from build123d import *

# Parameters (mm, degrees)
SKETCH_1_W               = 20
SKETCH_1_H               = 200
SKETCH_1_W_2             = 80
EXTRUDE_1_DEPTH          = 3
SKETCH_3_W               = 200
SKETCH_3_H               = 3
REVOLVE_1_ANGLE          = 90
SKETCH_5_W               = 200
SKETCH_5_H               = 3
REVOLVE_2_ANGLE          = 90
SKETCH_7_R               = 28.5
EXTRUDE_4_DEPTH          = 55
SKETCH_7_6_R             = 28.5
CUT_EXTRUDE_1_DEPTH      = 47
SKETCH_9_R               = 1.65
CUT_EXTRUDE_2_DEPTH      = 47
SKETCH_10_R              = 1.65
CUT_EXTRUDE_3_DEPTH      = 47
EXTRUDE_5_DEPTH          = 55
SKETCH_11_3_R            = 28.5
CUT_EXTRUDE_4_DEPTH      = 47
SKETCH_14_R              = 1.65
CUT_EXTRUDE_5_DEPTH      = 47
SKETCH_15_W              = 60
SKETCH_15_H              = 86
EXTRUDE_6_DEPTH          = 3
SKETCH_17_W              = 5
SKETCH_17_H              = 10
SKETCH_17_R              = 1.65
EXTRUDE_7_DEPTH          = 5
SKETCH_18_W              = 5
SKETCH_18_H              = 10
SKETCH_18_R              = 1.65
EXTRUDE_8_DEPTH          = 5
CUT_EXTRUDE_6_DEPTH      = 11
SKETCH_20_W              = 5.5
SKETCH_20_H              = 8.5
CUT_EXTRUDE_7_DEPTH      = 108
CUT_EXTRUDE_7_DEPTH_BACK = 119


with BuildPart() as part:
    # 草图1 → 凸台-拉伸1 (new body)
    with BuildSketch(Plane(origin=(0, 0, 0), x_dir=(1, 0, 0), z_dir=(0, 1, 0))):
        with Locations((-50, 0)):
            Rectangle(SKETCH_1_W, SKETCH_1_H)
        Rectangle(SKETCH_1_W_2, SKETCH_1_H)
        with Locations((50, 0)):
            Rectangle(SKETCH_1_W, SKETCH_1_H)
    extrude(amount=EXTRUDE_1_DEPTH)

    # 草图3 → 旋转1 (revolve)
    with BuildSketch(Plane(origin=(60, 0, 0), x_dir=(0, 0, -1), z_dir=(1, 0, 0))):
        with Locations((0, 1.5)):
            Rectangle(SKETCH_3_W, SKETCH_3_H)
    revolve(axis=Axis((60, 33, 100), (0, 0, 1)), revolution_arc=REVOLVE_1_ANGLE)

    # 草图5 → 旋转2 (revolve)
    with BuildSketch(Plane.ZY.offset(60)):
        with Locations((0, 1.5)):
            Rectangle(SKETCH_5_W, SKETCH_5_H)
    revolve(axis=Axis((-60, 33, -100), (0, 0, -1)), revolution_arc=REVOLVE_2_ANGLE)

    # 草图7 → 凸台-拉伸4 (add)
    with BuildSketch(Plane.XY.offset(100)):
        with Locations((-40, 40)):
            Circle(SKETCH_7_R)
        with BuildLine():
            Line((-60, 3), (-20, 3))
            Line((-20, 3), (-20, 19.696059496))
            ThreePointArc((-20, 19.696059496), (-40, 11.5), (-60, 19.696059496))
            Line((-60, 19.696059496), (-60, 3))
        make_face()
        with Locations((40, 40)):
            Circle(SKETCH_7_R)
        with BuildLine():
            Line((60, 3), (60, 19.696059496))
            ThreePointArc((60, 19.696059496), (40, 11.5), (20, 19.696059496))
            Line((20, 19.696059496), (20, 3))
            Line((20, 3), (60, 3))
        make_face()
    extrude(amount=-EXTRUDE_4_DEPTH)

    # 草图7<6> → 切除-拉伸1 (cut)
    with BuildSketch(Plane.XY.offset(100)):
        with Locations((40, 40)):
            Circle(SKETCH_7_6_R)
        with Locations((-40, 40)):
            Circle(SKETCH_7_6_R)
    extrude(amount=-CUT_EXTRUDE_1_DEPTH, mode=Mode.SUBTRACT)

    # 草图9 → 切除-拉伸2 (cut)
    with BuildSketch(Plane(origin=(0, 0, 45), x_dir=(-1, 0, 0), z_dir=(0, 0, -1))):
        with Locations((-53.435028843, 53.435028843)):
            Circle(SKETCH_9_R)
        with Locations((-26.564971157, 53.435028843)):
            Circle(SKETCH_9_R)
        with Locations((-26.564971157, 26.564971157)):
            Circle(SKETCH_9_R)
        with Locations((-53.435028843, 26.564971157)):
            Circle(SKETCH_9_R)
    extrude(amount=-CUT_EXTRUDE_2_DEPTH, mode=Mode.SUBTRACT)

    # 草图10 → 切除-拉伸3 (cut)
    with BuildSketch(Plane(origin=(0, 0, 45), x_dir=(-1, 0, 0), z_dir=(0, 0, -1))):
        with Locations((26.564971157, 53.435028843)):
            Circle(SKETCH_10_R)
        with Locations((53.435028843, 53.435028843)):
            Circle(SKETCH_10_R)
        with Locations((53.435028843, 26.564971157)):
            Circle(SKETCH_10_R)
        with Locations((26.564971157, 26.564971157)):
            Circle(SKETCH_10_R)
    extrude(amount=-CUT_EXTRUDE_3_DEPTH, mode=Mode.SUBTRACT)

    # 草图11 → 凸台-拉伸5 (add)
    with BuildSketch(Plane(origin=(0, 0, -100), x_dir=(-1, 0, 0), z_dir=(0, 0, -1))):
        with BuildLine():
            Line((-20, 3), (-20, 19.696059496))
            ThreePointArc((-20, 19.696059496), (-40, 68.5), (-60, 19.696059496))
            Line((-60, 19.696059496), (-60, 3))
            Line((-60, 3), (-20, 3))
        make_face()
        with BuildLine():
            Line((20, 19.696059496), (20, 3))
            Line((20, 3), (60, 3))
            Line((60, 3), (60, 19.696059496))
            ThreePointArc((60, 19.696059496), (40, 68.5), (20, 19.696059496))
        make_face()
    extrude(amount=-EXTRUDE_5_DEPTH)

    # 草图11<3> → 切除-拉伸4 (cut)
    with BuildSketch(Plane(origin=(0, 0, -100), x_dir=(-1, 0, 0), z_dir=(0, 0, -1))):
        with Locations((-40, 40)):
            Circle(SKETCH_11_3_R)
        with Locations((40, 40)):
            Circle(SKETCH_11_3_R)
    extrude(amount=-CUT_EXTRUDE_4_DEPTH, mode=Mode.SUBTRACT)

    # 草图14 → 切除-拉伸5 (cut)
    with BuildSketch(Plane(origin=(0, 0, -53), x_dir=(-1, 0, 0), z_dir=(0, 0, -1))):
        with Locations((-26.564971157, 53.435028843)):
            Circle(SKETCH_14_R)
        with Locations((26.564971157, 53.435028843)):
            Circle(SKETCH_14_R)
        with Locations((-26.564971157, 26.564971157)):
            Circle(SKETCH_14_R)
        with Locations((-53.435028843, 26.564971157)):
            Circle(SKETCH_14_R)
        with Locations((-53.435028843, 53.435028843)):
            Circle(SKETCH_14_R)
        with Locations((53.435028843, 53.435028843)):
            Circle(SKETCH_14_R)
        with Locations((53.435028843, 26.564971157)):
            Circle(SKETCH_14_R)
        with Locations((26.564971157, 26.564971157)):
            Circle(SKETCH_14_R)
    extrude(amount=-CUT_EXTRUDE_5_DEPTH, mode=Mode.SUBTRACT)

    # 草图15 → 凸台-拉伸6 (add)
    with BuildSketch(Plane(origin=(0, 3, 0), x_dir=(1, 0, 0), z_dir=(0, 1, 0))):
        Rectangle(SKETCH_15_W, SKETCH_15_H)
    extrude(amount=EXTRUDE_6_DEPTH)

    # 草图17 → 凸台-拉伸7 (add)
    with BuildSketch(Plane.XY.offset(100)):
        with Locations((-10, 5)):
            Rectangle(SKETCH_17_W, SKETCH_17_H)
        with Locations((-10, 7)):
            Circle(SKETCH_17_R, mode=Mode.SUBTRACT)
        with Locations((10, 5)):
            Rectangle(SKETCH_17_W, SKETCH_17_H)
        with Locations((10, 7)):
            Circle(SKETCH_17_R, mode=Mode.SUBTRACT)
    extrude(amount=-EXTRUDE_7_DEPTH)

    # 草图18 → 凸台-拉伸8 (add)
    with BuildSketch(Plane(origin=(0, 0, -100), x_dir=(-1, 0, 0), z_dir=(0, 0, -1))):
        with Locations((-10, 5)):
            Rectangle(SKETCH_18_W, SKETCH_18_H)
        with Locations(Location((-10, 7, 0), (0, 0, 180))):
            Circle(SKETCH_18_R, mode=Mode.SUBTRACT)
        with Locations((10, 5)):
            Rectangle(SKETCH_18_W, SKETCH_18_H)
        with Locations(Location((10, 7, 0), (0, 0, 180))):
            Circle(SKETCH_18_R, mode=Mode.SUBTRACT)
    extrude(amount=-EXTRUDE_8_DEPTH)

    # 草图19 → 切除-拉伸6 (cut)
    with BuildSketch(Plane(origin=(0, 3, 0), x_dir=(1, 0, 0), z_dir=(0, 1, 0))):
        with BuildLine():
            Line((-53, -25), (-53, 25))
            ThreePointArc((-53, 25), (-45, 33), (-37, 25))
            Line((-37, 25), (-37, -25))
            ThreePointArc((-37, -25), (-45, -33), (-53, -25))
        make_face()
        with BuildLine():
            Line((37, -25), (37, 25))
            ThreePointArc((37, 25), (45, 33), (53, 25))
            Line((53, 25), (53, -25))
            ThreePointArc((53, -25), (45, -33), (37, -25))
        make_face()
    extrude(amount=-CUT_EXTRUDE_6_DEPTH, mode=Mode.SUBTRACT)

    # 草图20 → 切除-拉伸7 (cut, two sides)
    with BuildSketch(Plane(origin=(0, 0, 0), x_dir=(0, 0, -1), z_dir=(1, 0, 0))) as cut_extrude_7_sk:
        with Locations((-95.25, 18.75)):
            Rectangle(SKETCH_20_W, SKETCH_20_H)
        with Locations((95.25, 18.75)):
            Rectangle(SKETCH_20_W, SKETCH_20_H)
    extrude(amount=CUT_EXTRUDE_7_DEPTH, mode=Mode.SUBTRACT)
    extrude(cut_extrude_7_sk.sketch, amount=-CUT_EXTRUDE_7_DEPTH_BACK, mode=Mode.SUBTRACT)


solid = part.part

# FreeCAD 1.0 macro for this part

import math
import FreeCAD as App
import Part
import Sketcher
from FreeCAD import Vector
Q = App.Units.Quantity

doc = App.newDocument("Part")
body = doc.addObject("PartDesign::Body", "Body")

# Sketch on XZ plane
sketch1 = doc.addObject("Sketcher::SketchObject", "Sketch")
body.addObject(sketch1)
sketch1.AttachmentSupport = (doc.XZ_Plane, [""])
sketch1.MapMode = "FlatFace"
sketch1.addGeometry([
    Part.LineSegment(Vector(-60, -100, 0), Vector(-60, 100, 0)),
    Part.LineSegment(Vector(-60, 100, 0), Vector(60, 100, 0)),
    Part.LineSegment(Vector(60, 100, 0), Vector(60, -100, 0)),
    Part.LineSegment(Vector(60, -100, 0), Vector(-60, -100, 0)),
], False)
sketch1.addConstraint([
    Sketcher.Constraint("Coincident", 0, 2, 1, 1),
    Sketcher.Constraint("Coincident", 1, 2, 2, 1),
    Sketcher.Constraint("Coincident", 2, 2, 3, 1),
    Sketcher.Constraint("Coincident", 3, 2, 0, 1),
    Sketcher.Constraint("Vertical", 0),
    Sketcher.Constraint("Horizontal", 1),
    Sketcher.Constraint("Vertical", 2),
    Sketcher.Constraint("Horizontal", 3),
    Sketcher.Constraint("Symmetric", 0, 2, 2, 2, -1, 1),
    Sketcher.Constraint("DistanceX", 1, 1, 1, 2, Q("120 mm")),
    Sketcher.Constraint("DistanceY", 0, 1, 0, 2, Q("200 mm")),
])
pad1 = doc.addObject("PartDesign::Pad", "Pad")
body.addObject(pad1)
pad1.Profile = sketch1
pad1.Length = 3
pad1.Reversed = True

# Sketch on YZ plane
sketch2 = doc.addObject("Sketcher::SketchObject", "Sketch001")
body.addObject(sketch2)
sketch2.AttachmentSupport = (doc.YZ_Plane, [""])
sketch2.MapMode = "FlatFace"
sketch2.AttachmentOffset = App.Placement(Vector(0, 0, 60), App.Rotation())
sketch2.addGeometry([
    Part.LineSegment(Vector(3, 100, 0), Vector(0, 100, 0)),
    Part.LineSegment(Vector(0, 100, 0), Vector(0, -100, 0)),
    Part.LineSegment(Vector(0, -100, 0), Vector(3, -100, 0)),
    Part.LineSegment(Vector(3, -100, 0), Vector(3, 100, 0)),
], False)
sketch2.addGeometry(Part.LineSegment(Vector(33, -100, 0), Vector(33, 100, 0)), True)  # axis
sketch2.addConstraint([
    Sketcher.Constraint("Coincident", 0, 2, 1, 1),
    Sketcher.Constraint("Coincident", 1, 2, 2, 1),
    Sketcher.Constraint("Coincident", 2, 2, 3, 1),
    Sketcher.Constraint("Coincident", 3, 2, 0, 1),
    Sketcher.Constraint("Horizontal", 0),
    Sketcher.Constraint("Vertical", 1),
    Sketcher.Constraint("Horizontal", 2),
    Sketcher.Constraint("Vertical", 3),
    Sketcher.Constraint("Vertical", 4),
    Sketcher.Constraint("Symmetric", 0, 2, 1, 2, -1, 1),
    Sketcher.Constraint("Horizontal", 2, 2, 4, 1),
    Sketcher.Constraint("Horizontal", 3, 2, 4, 2),
    Sketcher.Constraint("DistanceX", 0, 2, 0, 1, Q("3 mm")),
    Sketcher.Constraint("DistanceY", 1, 2, 1, 1, Q("200 mm")),
    Sketcher.Constraint("DistanceX", -1, 1, 4, 1, Q("33 mm")),
])
revolution = doc.addObject("PartDesign::Revolution", "Revolution")
body.addObject(revolution)
revolution.Profile = sketch2
revolution.ReferenceAxis = (sketch2, ["Axis0"])
revolution.Angle = 90

# Sketch on YZ plane
sketch3 = doc.addObject("Sketcher::SketchObject", "Sketch002")
body.addObject(sketch3)
sketch3.AttachmentSupport = (doc.YZ_Plane, [""])
sketch3.MapMode = "FlatFace"
sketch3.AttachmentOffset = App.Placement(Vector(0, 0, -60), App.Rotation())
sketch3.addGeometry([
    Part.LineSegment(Vector(3, -100, 0), Vector(0, -100, 0)),
    Part.LineSegment(Vector(0, -100, 0), Vector(0, 100, 0)),
    Part.LineSegment(Vector(0, 100, 0), Vector(3, 100, 0)),
    Part.LineSegment(Vector(3, 100, 0), Vector(3, -100, 0)),
], False)
sketch3.addGeometry(Part.LineSegment(Vector(33, 100, 0), Vector(33, -100, 0)), True)  # axis
sketch3.addConstraint([
    Sketcher.Constraint("Coincident", 0, 2, 1, 1),
    Sketcher.Constraint("Coincident", 1, 2, 2, 1),
    Sketcher.Constraint("Coincident", 2, 2, 3, 1),
    Sketcher.Constraint("Coincident", 3, 2, 0, 1),
    Sketcher.Constraint("Horizontal", 0),
    Sketcher.Constraint("Vertical", 1),
    Sketcher.Constraint("Horizontal", 2),
    Sketcher.Constraint("Vertical", 3),
    Sketcher.Constraint("Vertical", 4),
    Sketcher.Constraint("Symmetric", 0, 2, 1, 2, -1, 1),
    Sketcher.Constraint("Horizontal", 2, 2, 4, 1),
    Sketcher.Constraint("Horizontal", 3, 2, 4, 2),
    Sketcher.Constraint("DistanceX", 0, 2, 0, 1, Q("3 mm")),
    Sketcher.Constraint("DistanceY", 1, 1, 1, 2, Q("200 mm")),
    Sketcher.Constraint("DistanceX", -1, 1, 4, 1, Q("33 mm")),
])
revolution2 = doc.addObject("PartDesign::Revolution", "Revolution001")
body.addObject(revolution2)
revolution2.Profile = sketch3
revolution2.ReferenceAxis = (sketch3, ["Axis0"])
revolution2.Angle = 90

# Sketch on XY plane
sketch4 = doc.addObject("Sketcher::SketchObject", "Sketch003")
body.addObject(sketch4)
sketch4.AttachmentSupport = (doc.XY_Plane, [""])
sketch4.MapMode = "FlatFace"
sketch4.AttachmentOffset = App.Placement(Vector(0, 0, 100), App.Rotation())
sketch4.addGeometry([
    Part.LineSegment(Vector(-60, 20, 0), Vector(-60, 3, 0)),  # 0
    Part.LineSegment(Vector(-60, 3, 0), Vector(-20, 3, 0)),  # 1
    Part.LineSegment(Vector(-20, 3, 0), Vector(-20, 20, 0)),  # 2
    Part.ArcOfCircle(Part.Circle(Vector(-40, 40, 0), Vector(0, 0, 1), 28), math.radians(-45), math.radians(225)),  # 3
    Part.LineSegment(Vector(20, 20, 0), Vector(20, 3, 0)),  # 4
    Part.LineSegment(Vector(20, 3, 0), Vector(60, 3, 0)),  # 5
    Part.LineSegment(Vector(60, 3, 0), Vector(60, 20, 0)),  # 6
    Part.ArcOfCircle(Part.Circle(Vector(40, 40, 0), Vector(0, 0, 1), 28), math.radians(-45), math.radians(225)),  # 7
], False)
sketch4.addConstraint([
    Sketcher.Constraint("Coincident", 0, 2, 1, 1),
    Sketcher.Constraint("Coincident", 1, 2, 2, 1),
    Sketcher.Constraint("Coincident", 2, 2, 3, 1),
    Sketcher.Constraint("Coincident", 3, 2, 0, 1),
    Sketcher.Constraint("Coincident", 4, 2, 5, 1),
    Sketcher.Constraint("Coincident", 5, 2, 6, 1),
    Sketcher.Constraint("Coincident", 6, 2, 7, 1),
    Sketcher.Constraint("Coincident", 7, 2, 4, 1),
    Sketcher.Constraint("Vertical", 0),
    Sketcher.Constraint("Horizontal", 1),
    Sketcher.Constraint("Vertical", 2),
    Sketcher.Constraint("Vertical", 4),
    Sketcher.Constraint("Horizontal", 5),
    Sketcher.Constraint("Vertical", 6),
    Sketcher.Constraint("Equal", 3, 7),
    Sketcher.Constraint("Symmetric", 3, 3, 7, 3, -2),
    Sketcher.Constraint("Symmetric", 1, 2, 4, 2, -2),
    Sketcher.Constraint("Horizontal", 2, 2, 3, 2),
    Sketcher.Constraint("Horizontal", 3, 2, 6, 2),
    Sketcher.Constraint("Radius", 3, Q("28.5 mm")),
    Sketcher.Constraint("DistanceX", 1, 1, 1, 2, Q("40 mm")),
    Sketcher.Constraint("DistanceX", 3, 3, -1, 1, Q("40 mm")),
    Sketcher.Constraint("DistanceY", -1, 1, 3, 3, Q("40 mm")),
    Sketcher.Constraint("DistanceY", -1, 1, 0, 2, Q("3 mm")),
])
pad2 = doc.addObject("PartDesign::Pad", "Pad001")
body.addObject(pad2)
pad2.Profile = sketch4
pad2.Length = 55
pad2.Reversed = True

# Sketch on XY plane
sketch5 = doc.addObject("Sketcher::SketchObject", "Sketch004")
body.addObject(sketch5)
sketch5.AttachmentSupport = (doc.XY_Plane, [""])
sketch5.MapMode = "FlatFace"
sketch5.AttachmentOffset = App.Placement(Vector(0, 0, 100), App.Rotation())
sketch5.addGeometry([
    Part.Circle(Vector(40, 40, 0), Vector(0, 0, 1), 28),
    Part.Circle(Vector(-40, 40, 0), Vector(0, 0, 1), 28),
], False)
sketch5.addConstraint([
    Sketcher.Constraint("Equal", 0, 1),
    Sketcher.Constraint("Symmetric", 0, 3, 1, 3, -2),
    Sketcher.Constraint("Diameter", 0, Q("57 mm")),
    Sketcher.Constraint("DistanceX", -1, 1, 0, 3, Q("40 mm")),
    Sketcher.Constraint("DistanceY", -1, 1, 0, 3, Q("40 mm")),
])
pocket1 = doc.addObject("PartDesign::Pocket", "Pocket")
body.addObject(pocket1)
pocket1.Profile = sketch5
pocket1.Length = 47

# Sketch on XY plane
sketch6 = doc.addObject("Sketcher::SketchObject", "Sketch005")
body.addObject(sketch6)
sketch6.AttachmentSupport = (doc.XY_Plane, [""])
sketch6.MapMode = "FlatFace"
sketch6.AttachmentOffset = App.Placement(Vector(0, 0, 45), App.Rotation())
sketch6.addGeometry([
    Part.Circle(Vector(53.4, 53.4, 0), Vector(0, 0, 1), 1.6),
    Part.Circle(Vector(26.6, 53.4, 0), Vector(0, 0, 1), 1.6),
    Part.Circle(Vector(26.6, 26.6, 0), Vector(0, 0, 1), 1.6),
    Part.Circle(Vector(53.4, 26.6, 0), Vector(0, 0, 1), 1.6),
], False)
sketch6.addConstraint([
    Sketcher.Constraint("Equal", 0, 1),
    Sketcher.Constraint("Equal", 1, 2),
    Sketcher.Constraint("Equal", 2, 3),
    Sketcher.Constraint("Horizontal", 0, 3, 1, 3),
    Sketcher.Constraint("Horizontal", 2, 3, 3, 3),
    Sketcher.Constraint("Vertical", 1, 3, 2, 3),
    Sketcher.Constraint("Vertical", 0, 3, 3, 3),
    Sketcher.Constraint("Diameter", 0, Q("3.3 mm")),
    Sketcher.Constraint("DistanceX", -1, 1, 0, 3, Q("53.435029 mm")),
    Sketcher.Constraint("DistanceY", -1, 1, 0, 3, Q("53.435029 mm")),
    Sketcher.Constraint("DistanceX", -1, 1, 1, 3, Q("26.564971 mm")),
    Sketcher.Constraint("DistanceY", -1, 1, 2, 3, Q("26.564971 mm")),
])
pocket2 = doc.addObject("PartDesign::Pocket", "Pocket001")
body.addObject(pocket2)
pocket2.Profile = sketch6
pocket2.Length = 47
pocket2.Reversed = True

# Sketch on XY plane
sketch7 = doc.addObject("Sketcher::SketchObject", "Sketch006")
body.addObject(sketch7)
sketch7.AttachmentSupport = (doc.XY_Plane, [""])
sketch7.MapMode = "FlatFace"
sketch7.AttachmentOffset = App.Placement(Vector(0, 0, 45), App.Rotation())
sketch7.addGeometry([
    Part.Circle(Vector(-26.6, 53.4, 0), Vector(0, 0, 1), 1.6),
    Part.Circle(Vector(-53.4, 53.4, 0), Vector(0, 0, 1), 1.6),
    Part.Circle(Vector(-53.4, 26.6, 0), Vector(0, 0, 1), 1.6),
    Part.Circle(Vector(-26.6, 26.6, 0), Vector(0, 0, 1), 1.6),
], False)
sketch7.addConstraint([
    Sketcher.Constraint("Equal", 0, 1),
    Sketcher.Constraint("Equal", 1, 2),
    Sketcher.Constraint("Equal", 2, 3),
    Sketcher.Constraint("Horizontal", 0, 3, 1, 3),
    Sketcher.Constraint("Horizontal", 2, 3, 3, 3),
    Sketcher.Constraint("Vertical", 1, 3, 2, 3),
    Sketcher.Constraint("Vertical", 0, 3, 3, 3),
    Sketcher.Constraint("Diameter", 0, Q("3.3 mm")),
    Sketcher.Constraint("DistanceX", 0, 3, -1, 1, Q("26.564971 mm")),
    Sketcher.Constraint("DistanceY", -1, 1, 0, 3, Q("53.435029 mm")),
    Sketcher.Constraint("DistanceX", 1, 3, -1, 1, Q("53.435029 mm")),
    Sketcher.Constraint("DistanceY", -1, 1, 2, 3, Q("26.564971 mm")),
])
pocket3 = doc.addObject("PartDesign::Pocket", "Pocket002")
body.addObject(pocket3)
pocket3.Profile = sketch7
pocket3.Length = 47
pocket3.Reversed = True

# Sketch on XY plane
sketch8 = doc.addObject("Sketcher::SketchObject", "Sketch007")
body.addObject(sketch8)
sketch8.AttachmentSupport = (doc.XY_Plane, [""])
sketch8.MapMode = "FlatFace"
sketch8.AttachmentOffset = App.Placement(Vector(0, 0, -100), App.Rotation())
sketch8.addGeometry([
    Part.LineSegment(Vector(20, 3, 0), Vector(20, 20, 0)),  # 0
    Part.ArcOfCircle(Part.Circle(Vector(40, 40, 0), Vector(0, 0, 1), 28), math.radians(-45), math.radians(225)),  # 1
    Part.LineSegment(Vector(60, 20, 0), Vector(60, 3, 0)),  # 2
    Part.LineSegment(Vector(60, 3, 0), Vector(20, 3, 0)),  # 3
    Part.LineSegment(Vector(-20, 20, 0), Vector(-20, 3, 0)),  # 4
    Part.LineSegment(Vector(-20, 3, 0), Vector(-60, 3, 0)),  # 5
    Part.LineSegment(Vector(-60, 3, 0), Vector(-60, 20, 0)),  # 6
    Part.ArcOfCircle(Part.Circle(Vector(-40, 40, 0), Vector(0, 0, 1), 28), math.radians(-45), math.radians(225)),  # 7
], False)
sketch8.addConstraint([
    Sketcher.Constraint("Coincident", 0, 2, 1, 2),
    Sketcher.Constraint("Coincident", 1, 1, 2, 1),
    Sketcher.Constraint("Coincident", 2, 2, 3, 1),
    Sketcher.Constraint("Coincident", 3, 2, 0, 1),
    Sketcher.Constraint("Coincident", 4, 2, 5, 1),
    Sketcher.Constraint("Coincident", 5, 2, 6, 1),
    Sketcher.Constraint("Coincident", 6, 2, 7, 2),
    Sketcher.Constraint("Coincident", 7, 1, 4, 1),
    Sketcher.Constraint("Vertical", 0),
    Sketcher.Constraint("Vertical", 2),
    Sketcher.Constraint("Horizontal", 3),
    Sketcher.Constraint("Vertical", 4),
    Sketcher.Constraint("Horizontal", 5),
    Sketcher.Constraint("Vertical", 6),
    Sketcher.Constraint("Equal", 1, 7),
    Sketcher.Constraint("Symmetric", 1, 3, 7, 3, -2),
    Sketcher.Constraint("Symmetric", 3, 2, 4, 2, -2),
    Sketcher.Constraint("Horizontal", 0, 2, 1, 1),
    Sketcher.Constraint("Horizontal", 1, 1, 6, 2),
    Sketcher.Constraint("Radius", 1, Q("28.5 mm")),
    Sketcher.Constraint("DistanceX", 3, 2, 3, 1, Q("40 mm")),
    Sketcher.Constraint("DistanceX", -1, 1, 1, 3, Q("40 mm")),
    Sketcher.Constraint("DistanceY", -1, 1, 1, 3, Q("40 mm")),
    Sketcher.Constraint("DistanceY", -1, 1, 2, 2, Q("3 mm")),
])
pad3 = doc.addObject("PartDesign::Pad", "Pad002")
body.addObject(pad3)
pad3.Profile = sketch8
pad3.Length = 55

# Sketch on XY plane
sketch9 = doc.addObject("Sketcher::SketchObject", "Sketch008")
body.addObject(sketch9)
sketch9.AttachmentSupport = (doc.XY_Plane, [""])
sketch9.MapMode = "FlatFace"
sketch9.AttachmentOffset = App.Placement(Vector(0, 0, -100), App.Rotation())
sketch9.addGeometry([
    Part.Circle(Vector(40, 40, 0), Vector(0, 0, 1), 28),
    Part.Circle(Vector(-40, 40, 0), Vector(0, 0, 1), 28),
], False)
sketch9.addConstraint([
    Sketcher.Constraint("Equal", 0, 1),
    Sketcher.Constraint("Symmetric", 0, 3, 1, 3, -2),
    Sketcher.Constraint("Diameter", 0, Q("57 mm")),
    Sketcher.Constraint("DistanceX", -1, 1, 0, 3, Q("40 mm")),
    Sketcher.Constraint("DistanceY", -1, 1, 0, 3, Q("40 mm")),
])
pocket4 = doc.addObject("PartDesign::Pocket", "Pocket003")
body.addObject(pocket4)
pocket4.Profile = sketch9
pocket4.Length = 47
pocket4.Reversed = True

# Sketch on XY plane
sketch10 = doc.addObject("Sketcher::SketchObject", "Sketch009")
body.addObject(sketch10)
sketch10.AttachmentSupport = (doc.XY_Plane, [""])
sketch10.MapMode = "FlatFace"
sketch10.AttachmentOffset = App.Placement(Vector(0, 0, -53), App.Rotation())
sketch10.addGeometry([
    Part.Circle(Vector(26.6, 53.4, 0), Vector(0, 0, 1), 1.6),  # 0
    Part.Circle(Vector(-26.6, 53.4, 0), Vector(0, 0, 1), 1.6),  # 1
    Part.Circle(Vector(26.6, 26.6, 0), Vector(0, 0, 1), 1.6),  # 2
    Part.Circle(Vector(53.4, 26.6, 0), Vector(0, 0, 1), 1.6),  # 3
    Part.Circle(Vector(53.4, 53.4, 0), Vector(0, 0, 1), 1.6),  # 4
    Part.Circle(Vector(-53.4, 53.4, 0), Vector(0, 0, 1), 1.6),  # 5
    Part.Circle(Vector(-53.4, 26.6, 0), Vector(0, 0, 1), 1.6),  # 6
    Part.Circle(Vector(-26.6, 26.6, 0), Vector(0, 0, 1), 1.6),  # 7
], False)
sketch10.addConstraint([
    Sketcher.Constraint("Equal", 0, 1),
    Sketcher.Constraint("Equal", 1, 2),
    Sketcher.Constraint("Equal", 2, 3),
    Sketcher.Constraint("Equal", 3, 4),
    Sketcher.Constraint("Equal", 4, 5),
    Sketcher.Constraint("Equal", 5, 6),
    Sketcher.Constraint("Equal", 6, 7),
    Sketcher.Constraint("Symmetric", 0, 3, 1, 3, -2),
    Sketcher.Constraint("Symmetric", 4, 3, 5, 3, -2),
    Sketcher.Constraint("Symmetric", 3, 3, 6, 3, -2),
    Sketcher.Constraint("Symmetric", 2, 3, 7, 3, -2),
    Sketcher.Constraint("Horizontal", 2, 3, 3, 3),
    Sketcher.Constraint("Horizontal", 1, 3, 4, 3),
    Sketcher.Constraint("Vertical", 0, 3, 2, 3),
    Sketcher.Constraint("Vertical", 3, 3, 4, 3),
    Sketcher.Constraint("Diameter", 0, Q("3.3 mm")),
    Sketcher.Constraint("DistanceX", 1, 3, 3, 3, Q("80 mm")),
    Sketcher.Constraint("DistanceX", -1, 1, 0, 3, Q("26.564971 mm")),
    Sketcher.Constraint("DistanceY", -1, 1, 0, 3, Q("53.435029 mm")),
    Sketcher.Constraint("DistanceY", -1, 1, 2, 3, Q("26.564971 mm")),
])
pocket5 = doc.addObject("PartDesign::Pocket", "Pocket004")
body.addObject(pocket5)
pocket5.Profile = sketch10
pocket5.Length = 47
pocket5.Reversed = True

# Sketch on XZ plane
sketch11 = doc.addObject("Sketcher::SketchObject", "Sketch010")
body.addObject(sketch11)
sketch11.AttachmentSupport = (doc.XZ_Plane, [""])
sketch11.MapMode = "FlatFace"
sketch11.AttachmentOffset = App.Placement(Vector(0, 0, -3), App.Rotation())
sketch11.addGeometry([
    Part.LineSegment(Vector(-30, -43, 0), Vector(-30, 43, 0)),
    Part.LineSegment(Vector(-30, 43, 0), Vector(30, 43, 0)),
    Part.LineSegment(Vector(30, 43, 0), Vector(30, -43, 0)),
    Part.LineSegment(Vector(30, -43, 0), Vector(-30, -43, 0)),
], False)
sketch11.addConstraint([
    Sketcher.Constraint("Coincident", 0, 2, 1, 1),
    Sketcher.Constraint("Coincident", 1, 2, 2, 1),
    Sketcher.Constraint("Coincident", 2, 2, 3, 1),
    Sketcher.Constraint("Coincident", 3, 2, 0, 1),
    Sketcher.Constraint("Vertical", 0),
    Sketcher.Constraint("Horizontal", 1),
    Sketcher.Constraint("Vertical", 2),
    Sketcher.Constraint("Horizontal", 3),
    Sketcher.Constraint("Symmetric", 0, 2, 2, 2, -1, 1),
    Sketcher.Constraint("DistanceX", 1, 1, 1, 2, Q("60 mm")),
    Sketcher.Constraint("DistanceY", 0, 1, 0, 2, Q("86 mm")),
])
pad4 = doc.addObject("PartDesign::Pad", "Pad003")
body.addObject(pad4)
pad4.Profile = sketch11
pad4.Length = 3
pad4.Reversed = True

# Sketch on XY plane
sketch12 = doc.addObject("Sketcher::SketchObject", "Sketch011")
body.addObject(sketch12)
sketch12.AttachmentSupport = (doc.XY_Plane, [""])
sketch12.MapMode = "FlatFace"
sketch12.AttachmentOffset = App.Placement(Vector(0, 0, 100), App.Rotation())
sketch12.addGeometry([
    Part.LineSegment(Vector(-12.5, 10, 0), Vector(-12.5, 0, 0)),  # 0
    Part.LineSegment(Vector(-12.5, 0, 0), Vector(-7.5, 0, 0)),  # 1
    Part.LineSegment(Vector(-7.5, 0, 0), Vector(-7.5, 10, 0)),  # 2
    Part.LineSegment(Vector(-7.5, 10, 0), Vector(-12.5, 10, 0)),  # 3
    Part.Circle(Vector(-10, 7, 0), Vector(0, 0, 1), 1.6),  # 4
    Part.LineSegment(Vector(7.5, 10, 0), Vector(7.5, 0, 0)),  # 5
    Part.LineSegment(Vector(7.5, 0, 0), Vector(12.5, 0, 0)),  # 6
    Part.LineSegment(Vector(12.5, 0, 0), Vector(12.5, 10, 0)),  # 7
    Part.LineSegment(Vector(12.5, 10, 0), Vector(7.5, 10, 0)),  # 8
    Part.Circle(Vector(10, 7, 0), Vector(0, 0, 1), 1.6),  # 9
], False)
sketch12.addConstraint([
    Sketcher.Constraint("Coincident", 0, 2, 1, 1),
    Sketcher.Constraint("Coincident", 1, 2, 2, 1),
    Sketcher.Constraint("Coincident", 2, 2, 3, 1),
    Sketcher.Constraint("Coincident", 3, 2, 0, 1),
    Sketcher.Constraint("Coincident", 5, 2, 6, 1),
    Sketcher.Constraint("Coincident", 6, 2, 7, 1),
    Sketcher.Constraint("Coincident", 7, 2, 8, 1),
    Sketcher.Constraint("Coincident", 8, 2, 5, 1),
    Sketcher.Constraint("Vertical", 0),
    Sketcher.Constraint("Horizontal", 1),
    Sketcher.Constraint("Vertical", 2),
    Sketcher.Constraint("Horizontal", 3),
    Sketcher.Constraint("Vertical", 5),
    Sketcher.Constraint("Horizontal", 6),
    Sketcher.Constraint("Vertical", 7),
    Sketcher.Constraint("Horizontal", 8),
    Sketcher.Constraint("Equal", 4, 9),
    Sketcher.Constraint("Symmetric", 1, 2, 5, 2, -1, 1),
    Sketcher.Constraint("Symmetric", 4, 3, 9, 3, -2),
    Sketcher.Constraint("Symmetric", 0, 2, 6, 2, -2),
    Sketcher.Constraint("Horizontal", 3, 2, 7, 2),
    Sketcher.Constraint("Diameter", 4, Q("3.3 mm")),
    Sketcher.Constraint("DistanceX", 1, 1, 1, 2, Q("5 mm")),
    Sketcher.Constraint("DistanceY", 0, 2, 0, 1, Q("10 mm")),
    Sketcher.Constraint("DistanceX", 4, 3, -1, 1, Q("10 mm")),
    Sketcher.Constraint("DistanceY", -1, 1, 4, 3, Q("7 mm")),
    Sketcher.Constraint("DistanceX", 1, 2, 5, 2, Q("15 mm")),
])
pad5 = doc.addObject("PartDesign::Pad", "Pad004")
body.addObject(pad5)
pad5.Profile = sketch12
pad5.Length = 5
pad5.Reversed = True

# Sketch on XY plane
sketch13 = doc.addObject("Sketcher::SketchObject", "Sketch012")
body.addObject(sketch13)
sketch13.AttachmentSupport = (doc.XY_Plane, [""])
sketch13.MapMode = "FlatFace"
sketch13.AttachmentOffset = App.Placement(Vector(0, 0, -100), App.Rotation())
sketch13.addGeometry([
    Part.LineSegment(Vector(12.5, 10, 0), Vector(12.5, 0, 0)),  # 0
    Part.LineSegment(Vector(12.5, 0, 0), Vector(7.5, 0, 0)),  # 1
    Part.LineSegment(Vector(7.5, 0, 0), Vector(7.5, 10, 0)),  # 2
    Part.LineSegment(Vector(7.5, 10, 0), Vector(12.5, 10, 0)),  # 3
    Part.Circle(Vector(10, 7, 0), Vector(0, 0, 1), 1.6),  # 4
    Part.LineSegment(Vector(-7.5, 10, 0), Vector(-7.5, 0, 0)),  # 5
    Part.LineSegment(Vector(-7.5, 0, 0), Vector(-12.5, 0, 0)),  # 6
    Part.LineSegment(Vector(-12.5, 0, 0), Vector(-12.5, 10, 0)),  # 7
    Part.LineSegment(Vector(-12.5, 10, 0), Vector(-7.5, 10, 0)),  # 8
    Part.Circle(Vector(-10, 7, 0), Vector(0, 0, 1), 1.6),  # 9
], False)
sketch13.addConstraint([
    Sketcher.Constraint("Coincident", 0, 2, 1, 1),
    Sketcher.Constraint("Coincident", 1, 2, 2, 1),
    Sketcher.Constraint("Coincident", 2, 2, 3, 1),
    Sketcher.Constraint("Coincident", 3, 2, 0, 1),
    Sketcher.Constraint("Coincident", 5, 2, 6, 1),
    Sketcher.Constraint("Coincident", 6, 2, 7, 1),
    Sketcher.Constraint("Coincident", 7, 2, 8, 1),
    Sketcher.Constraint("Coincident", 8, 2, 5, 1),
    Sketcher.Constraint("Vertical", 0),
    Sketcher.Constraint("Horizontal", 1),
    Sketcher.Constraint("Vertical", 2),
    Sketcher.Constraint("Horizontal", 3),
    Sketcher.Constraint("Vertical", 5),
    Sketcher.Constraint("Horizontal", 6),
    Sketcher.Constraint("Vertical", 7),
    Sketcher.Constraint("Horizontal", 8),
    Sketcher.Constraint("Equal", 4, 9),
    Sketcher.Constraint("Symmetric", 1, 2, 5, 2, -1, 1),
    Sketcher.Constraint("Symmetric", 4, 3, 9, 3, -2),
    Sketcher.Constraint("Symmetric", 0, 2, 6, 2, -2),
    Sketcher.Constraint("Horizontal", 3, 2, 7, 2),
    Sketcher.Constraint("Diameter", 4, Q("3.3 mm")),
    Sketcher.Constraint("DistanceX", 1, 2, 1, 1, Q("5 mm")),
    Sketcher.Constraint("DistanceY", 0, 2, 0, 1, Q("10 mm")),
    Sketcher.Constraint("DistanceX", -1, 1, 4, 3, Q("10 mm")),
    Sketcher.Constraint("DistanceY", -1, 1, 4, 3, Q("7 mm")),
    Sketcher.Constraint("DistanceX", 5, 2, 1, 2, Q("15 mm")),
])
pad6 = doc.addObject("PartDesign::Pad", "Pad005")
body.addObject(pad6)
pad6.Profile = sketch13
pad6.Length = 5

# Sketch on XZ plane
sketch14 = doc.addObject("Sketcher::SketchObject", "Sketch013")
body.addObject(sketch14)
sketch14.AttachmentSupport = (doc.XZ_Plane, [""])
sketch14.MapMode = "FlatFace"
sketch14.AttachmentOffset = App.Placement(Vector(0, 0, -3), App.Rotation())
sketch14.addGeometry([
    Part.LineSegment(Vector(-53, -25, 0), Vector(-53, 25, 0)),  # 0
    Part.ArcOfCircle(Part.Circle(Vector(-45, 25, 0), Vector(0, 0, 1), 8), math.radians(0), math.radians(180)),  # 1
    Part.LineSegment(Vector(-37, 25, 0), Vector(-37, -25, 0)),  # 2
    Part.ArcOfCircle(Part.Circle(Vector(-45, -25, 0), Vector(0, 0, 1), 8), math.radians(180), math.radians(360)),  # 3
    Part.LineSegment(Vector(37, -25, 0), Vector(37, 25, 0)),  # 4
    Part.ArcOfCircle(Part.Circle(Vector(45, 25, 0), Vector(0, 0, 1), 8), math.radians(0), math.radians(180)),  # 5
    Part.LineSegment(Vector(53, 25, 0), Vector(53, -25, 0)),  # 6
    Part.ArcOfCircle(Part.Circle(Vector(45, -25, 0), Vector(0, 0, 1), 8), math.radians(180), math.radians(360)),  # 7
], False)
sketch14.addConstraint([
    Sketcher.Constraint("Tangent", 0, 2, 1, 2),
    Sketcher.Constraint("Tangent", 1, 1, 2, 1),
    Sketcher.Constraint("Tangent", 2, 2, 3, 2),
    Sketcher.Constraint("Tangent", 3, 1, 0, 1),
    Sketcher.Constraint("Tangent", 4, 2, 5, 2),
    Sketcher.Constraint("Tangent", 5, 1, 6, 1),
    Sketcher.Constraint("Tangent", 6, 2, 7, 2),
    Sketcher.Constraint("Tangent", 7, 1, 4, 1),
    Sketcher.Constraint("Vertical", 0),
    Sketcher.Constraint("Vertical", 2),
    Sketcher.Constraint("Vertical", 4),
    Sketcher.Constraint("Vertical", 6),
    Sketcher.Constraint("Equal", 3, 5),
    Sketcher.Constraint("Symmetric", 3, 3, 5, 3, -1, 1),
    Sketcher.Constraint("Horizontal", 1, 3, 5, 3),
    Sketcher.Constraint("Horizontal", 3, 3, 7, 3),
    Sketcher.Constraint("Radius", 1, Q("8 mm")),
    Sketcher.Constraint("DistanceY", 0, 1, 0, 2, Q("50 mm")),
    Sketcher.Constraint("DistanceX", 1, 3, -1, 1, Q("45 mm")),
])
pocket6 = doc.addObject("PartDesign::Pocket", "Pocket005")
body.addObject(pocket6)
pocket6.Profile = sketch14
pocket6.Length = 11
pocket6.Reversed = True

# Sketch on YZ plane
sketch15 = doc.addObject("Sketcher::SketchObject", "Sketch014")
body.addObject(sketch15)
sketch15.AttachmentSupport = (doc.YZ_Plane, [""])
sketch15.MapMode = "FlatFace"
sketch15.addGeometry([
    Part.LineSegment(Vector(23, 98, 0), Vector(14, 98, 0)),  # 0
    Part.LineSegment(Vector(14, 98, 0), Vector(14, 92, 0)),  # 1
    Part.LineSegment(Vector(14, 92, 0), Vector(23, 92, 0)),  # 2
    Part.LineSegment(Vector(23, 92, 0), Vector(23, 98, 0)),  # 3
    Part.LineSegment(Vector(23, -92, 0), Vector(14, -92, 0)),  # 4
    Part.LineSegment(Vector(14, -92, 0), Vector(14, -98, 0)),  # 5
    Part.LineSegment(Vector(14, -98, 0), Vector(23, -98, 0)),  # 6
    Part.LineSegment(Vector(23, -98, 0), Vector(23, -92, 0)),  # 7
], False)
sketch15.addConstraint([
    Sketcher.Constraint("Coincident", 0, 2, 1, 1),
    Sketcher.Constraint("Coincident", 1, 2, 2, 1),
    Sketcher.Constraint("Coincident", 2, 2, 3, 1),
    Sketcher.Constraint("Coincident", 3, 2, 0, 1),
    Sketcher.Constraint("Coincident", 4, 2, 5, 1),
    Sketcher.Constraint("Coincident", 5, 2, 6, 1),
    Sketcher.Constraint("Coincident", 6, 2, 7, 1),
    Sketcher.Constraint("Coincident", 7, 2, 4, 1),
    Sketcher.Constraint("Horizontal", 0),
    Sketcher.Constraint("Vertical", 1),
    Sketcher.Constraint("Horizontal", 2),
    Sketcher.Constraint("Vertical", 3),
    Sketcher.Constraint("Horizontal", 4),
    Sketcher.Constraint("Vertical", 5),
    Sketcher.Constraint("Horizontal", 6),
    Sketcher.Constraint("Vertical", 7),
    Sketcher.Constraint("Symmetric", 1, 2, 4, 2, -1),
    Sketcher.Constraint("Symmetric", 3, 2, 6, 2, -1),
    Sketcher.Constraint("DistanceX", 0, 2, 0, 1, Q("8.5 mm")),
    Sketcher.Constraint("DistanceY", 1, 2, 1, 1, Q("5.5 mm")),
    Sketcher.Constraint("DistanceY", -1, 1, 0, 2, Q("98 mm")),
    Sketcher.Constraint("DistanceX", -1, 1, 2, 2, Q("23 mm")),
])
pocket7 = doc.addObject("PartDesign::Pocket", "Pocket006")
body.addObject(pocket7)
pocket7.Profile = sketch15
pocket7.Type = "ThroughAll"
pocket7.Midplane = True

doc.recompute()
